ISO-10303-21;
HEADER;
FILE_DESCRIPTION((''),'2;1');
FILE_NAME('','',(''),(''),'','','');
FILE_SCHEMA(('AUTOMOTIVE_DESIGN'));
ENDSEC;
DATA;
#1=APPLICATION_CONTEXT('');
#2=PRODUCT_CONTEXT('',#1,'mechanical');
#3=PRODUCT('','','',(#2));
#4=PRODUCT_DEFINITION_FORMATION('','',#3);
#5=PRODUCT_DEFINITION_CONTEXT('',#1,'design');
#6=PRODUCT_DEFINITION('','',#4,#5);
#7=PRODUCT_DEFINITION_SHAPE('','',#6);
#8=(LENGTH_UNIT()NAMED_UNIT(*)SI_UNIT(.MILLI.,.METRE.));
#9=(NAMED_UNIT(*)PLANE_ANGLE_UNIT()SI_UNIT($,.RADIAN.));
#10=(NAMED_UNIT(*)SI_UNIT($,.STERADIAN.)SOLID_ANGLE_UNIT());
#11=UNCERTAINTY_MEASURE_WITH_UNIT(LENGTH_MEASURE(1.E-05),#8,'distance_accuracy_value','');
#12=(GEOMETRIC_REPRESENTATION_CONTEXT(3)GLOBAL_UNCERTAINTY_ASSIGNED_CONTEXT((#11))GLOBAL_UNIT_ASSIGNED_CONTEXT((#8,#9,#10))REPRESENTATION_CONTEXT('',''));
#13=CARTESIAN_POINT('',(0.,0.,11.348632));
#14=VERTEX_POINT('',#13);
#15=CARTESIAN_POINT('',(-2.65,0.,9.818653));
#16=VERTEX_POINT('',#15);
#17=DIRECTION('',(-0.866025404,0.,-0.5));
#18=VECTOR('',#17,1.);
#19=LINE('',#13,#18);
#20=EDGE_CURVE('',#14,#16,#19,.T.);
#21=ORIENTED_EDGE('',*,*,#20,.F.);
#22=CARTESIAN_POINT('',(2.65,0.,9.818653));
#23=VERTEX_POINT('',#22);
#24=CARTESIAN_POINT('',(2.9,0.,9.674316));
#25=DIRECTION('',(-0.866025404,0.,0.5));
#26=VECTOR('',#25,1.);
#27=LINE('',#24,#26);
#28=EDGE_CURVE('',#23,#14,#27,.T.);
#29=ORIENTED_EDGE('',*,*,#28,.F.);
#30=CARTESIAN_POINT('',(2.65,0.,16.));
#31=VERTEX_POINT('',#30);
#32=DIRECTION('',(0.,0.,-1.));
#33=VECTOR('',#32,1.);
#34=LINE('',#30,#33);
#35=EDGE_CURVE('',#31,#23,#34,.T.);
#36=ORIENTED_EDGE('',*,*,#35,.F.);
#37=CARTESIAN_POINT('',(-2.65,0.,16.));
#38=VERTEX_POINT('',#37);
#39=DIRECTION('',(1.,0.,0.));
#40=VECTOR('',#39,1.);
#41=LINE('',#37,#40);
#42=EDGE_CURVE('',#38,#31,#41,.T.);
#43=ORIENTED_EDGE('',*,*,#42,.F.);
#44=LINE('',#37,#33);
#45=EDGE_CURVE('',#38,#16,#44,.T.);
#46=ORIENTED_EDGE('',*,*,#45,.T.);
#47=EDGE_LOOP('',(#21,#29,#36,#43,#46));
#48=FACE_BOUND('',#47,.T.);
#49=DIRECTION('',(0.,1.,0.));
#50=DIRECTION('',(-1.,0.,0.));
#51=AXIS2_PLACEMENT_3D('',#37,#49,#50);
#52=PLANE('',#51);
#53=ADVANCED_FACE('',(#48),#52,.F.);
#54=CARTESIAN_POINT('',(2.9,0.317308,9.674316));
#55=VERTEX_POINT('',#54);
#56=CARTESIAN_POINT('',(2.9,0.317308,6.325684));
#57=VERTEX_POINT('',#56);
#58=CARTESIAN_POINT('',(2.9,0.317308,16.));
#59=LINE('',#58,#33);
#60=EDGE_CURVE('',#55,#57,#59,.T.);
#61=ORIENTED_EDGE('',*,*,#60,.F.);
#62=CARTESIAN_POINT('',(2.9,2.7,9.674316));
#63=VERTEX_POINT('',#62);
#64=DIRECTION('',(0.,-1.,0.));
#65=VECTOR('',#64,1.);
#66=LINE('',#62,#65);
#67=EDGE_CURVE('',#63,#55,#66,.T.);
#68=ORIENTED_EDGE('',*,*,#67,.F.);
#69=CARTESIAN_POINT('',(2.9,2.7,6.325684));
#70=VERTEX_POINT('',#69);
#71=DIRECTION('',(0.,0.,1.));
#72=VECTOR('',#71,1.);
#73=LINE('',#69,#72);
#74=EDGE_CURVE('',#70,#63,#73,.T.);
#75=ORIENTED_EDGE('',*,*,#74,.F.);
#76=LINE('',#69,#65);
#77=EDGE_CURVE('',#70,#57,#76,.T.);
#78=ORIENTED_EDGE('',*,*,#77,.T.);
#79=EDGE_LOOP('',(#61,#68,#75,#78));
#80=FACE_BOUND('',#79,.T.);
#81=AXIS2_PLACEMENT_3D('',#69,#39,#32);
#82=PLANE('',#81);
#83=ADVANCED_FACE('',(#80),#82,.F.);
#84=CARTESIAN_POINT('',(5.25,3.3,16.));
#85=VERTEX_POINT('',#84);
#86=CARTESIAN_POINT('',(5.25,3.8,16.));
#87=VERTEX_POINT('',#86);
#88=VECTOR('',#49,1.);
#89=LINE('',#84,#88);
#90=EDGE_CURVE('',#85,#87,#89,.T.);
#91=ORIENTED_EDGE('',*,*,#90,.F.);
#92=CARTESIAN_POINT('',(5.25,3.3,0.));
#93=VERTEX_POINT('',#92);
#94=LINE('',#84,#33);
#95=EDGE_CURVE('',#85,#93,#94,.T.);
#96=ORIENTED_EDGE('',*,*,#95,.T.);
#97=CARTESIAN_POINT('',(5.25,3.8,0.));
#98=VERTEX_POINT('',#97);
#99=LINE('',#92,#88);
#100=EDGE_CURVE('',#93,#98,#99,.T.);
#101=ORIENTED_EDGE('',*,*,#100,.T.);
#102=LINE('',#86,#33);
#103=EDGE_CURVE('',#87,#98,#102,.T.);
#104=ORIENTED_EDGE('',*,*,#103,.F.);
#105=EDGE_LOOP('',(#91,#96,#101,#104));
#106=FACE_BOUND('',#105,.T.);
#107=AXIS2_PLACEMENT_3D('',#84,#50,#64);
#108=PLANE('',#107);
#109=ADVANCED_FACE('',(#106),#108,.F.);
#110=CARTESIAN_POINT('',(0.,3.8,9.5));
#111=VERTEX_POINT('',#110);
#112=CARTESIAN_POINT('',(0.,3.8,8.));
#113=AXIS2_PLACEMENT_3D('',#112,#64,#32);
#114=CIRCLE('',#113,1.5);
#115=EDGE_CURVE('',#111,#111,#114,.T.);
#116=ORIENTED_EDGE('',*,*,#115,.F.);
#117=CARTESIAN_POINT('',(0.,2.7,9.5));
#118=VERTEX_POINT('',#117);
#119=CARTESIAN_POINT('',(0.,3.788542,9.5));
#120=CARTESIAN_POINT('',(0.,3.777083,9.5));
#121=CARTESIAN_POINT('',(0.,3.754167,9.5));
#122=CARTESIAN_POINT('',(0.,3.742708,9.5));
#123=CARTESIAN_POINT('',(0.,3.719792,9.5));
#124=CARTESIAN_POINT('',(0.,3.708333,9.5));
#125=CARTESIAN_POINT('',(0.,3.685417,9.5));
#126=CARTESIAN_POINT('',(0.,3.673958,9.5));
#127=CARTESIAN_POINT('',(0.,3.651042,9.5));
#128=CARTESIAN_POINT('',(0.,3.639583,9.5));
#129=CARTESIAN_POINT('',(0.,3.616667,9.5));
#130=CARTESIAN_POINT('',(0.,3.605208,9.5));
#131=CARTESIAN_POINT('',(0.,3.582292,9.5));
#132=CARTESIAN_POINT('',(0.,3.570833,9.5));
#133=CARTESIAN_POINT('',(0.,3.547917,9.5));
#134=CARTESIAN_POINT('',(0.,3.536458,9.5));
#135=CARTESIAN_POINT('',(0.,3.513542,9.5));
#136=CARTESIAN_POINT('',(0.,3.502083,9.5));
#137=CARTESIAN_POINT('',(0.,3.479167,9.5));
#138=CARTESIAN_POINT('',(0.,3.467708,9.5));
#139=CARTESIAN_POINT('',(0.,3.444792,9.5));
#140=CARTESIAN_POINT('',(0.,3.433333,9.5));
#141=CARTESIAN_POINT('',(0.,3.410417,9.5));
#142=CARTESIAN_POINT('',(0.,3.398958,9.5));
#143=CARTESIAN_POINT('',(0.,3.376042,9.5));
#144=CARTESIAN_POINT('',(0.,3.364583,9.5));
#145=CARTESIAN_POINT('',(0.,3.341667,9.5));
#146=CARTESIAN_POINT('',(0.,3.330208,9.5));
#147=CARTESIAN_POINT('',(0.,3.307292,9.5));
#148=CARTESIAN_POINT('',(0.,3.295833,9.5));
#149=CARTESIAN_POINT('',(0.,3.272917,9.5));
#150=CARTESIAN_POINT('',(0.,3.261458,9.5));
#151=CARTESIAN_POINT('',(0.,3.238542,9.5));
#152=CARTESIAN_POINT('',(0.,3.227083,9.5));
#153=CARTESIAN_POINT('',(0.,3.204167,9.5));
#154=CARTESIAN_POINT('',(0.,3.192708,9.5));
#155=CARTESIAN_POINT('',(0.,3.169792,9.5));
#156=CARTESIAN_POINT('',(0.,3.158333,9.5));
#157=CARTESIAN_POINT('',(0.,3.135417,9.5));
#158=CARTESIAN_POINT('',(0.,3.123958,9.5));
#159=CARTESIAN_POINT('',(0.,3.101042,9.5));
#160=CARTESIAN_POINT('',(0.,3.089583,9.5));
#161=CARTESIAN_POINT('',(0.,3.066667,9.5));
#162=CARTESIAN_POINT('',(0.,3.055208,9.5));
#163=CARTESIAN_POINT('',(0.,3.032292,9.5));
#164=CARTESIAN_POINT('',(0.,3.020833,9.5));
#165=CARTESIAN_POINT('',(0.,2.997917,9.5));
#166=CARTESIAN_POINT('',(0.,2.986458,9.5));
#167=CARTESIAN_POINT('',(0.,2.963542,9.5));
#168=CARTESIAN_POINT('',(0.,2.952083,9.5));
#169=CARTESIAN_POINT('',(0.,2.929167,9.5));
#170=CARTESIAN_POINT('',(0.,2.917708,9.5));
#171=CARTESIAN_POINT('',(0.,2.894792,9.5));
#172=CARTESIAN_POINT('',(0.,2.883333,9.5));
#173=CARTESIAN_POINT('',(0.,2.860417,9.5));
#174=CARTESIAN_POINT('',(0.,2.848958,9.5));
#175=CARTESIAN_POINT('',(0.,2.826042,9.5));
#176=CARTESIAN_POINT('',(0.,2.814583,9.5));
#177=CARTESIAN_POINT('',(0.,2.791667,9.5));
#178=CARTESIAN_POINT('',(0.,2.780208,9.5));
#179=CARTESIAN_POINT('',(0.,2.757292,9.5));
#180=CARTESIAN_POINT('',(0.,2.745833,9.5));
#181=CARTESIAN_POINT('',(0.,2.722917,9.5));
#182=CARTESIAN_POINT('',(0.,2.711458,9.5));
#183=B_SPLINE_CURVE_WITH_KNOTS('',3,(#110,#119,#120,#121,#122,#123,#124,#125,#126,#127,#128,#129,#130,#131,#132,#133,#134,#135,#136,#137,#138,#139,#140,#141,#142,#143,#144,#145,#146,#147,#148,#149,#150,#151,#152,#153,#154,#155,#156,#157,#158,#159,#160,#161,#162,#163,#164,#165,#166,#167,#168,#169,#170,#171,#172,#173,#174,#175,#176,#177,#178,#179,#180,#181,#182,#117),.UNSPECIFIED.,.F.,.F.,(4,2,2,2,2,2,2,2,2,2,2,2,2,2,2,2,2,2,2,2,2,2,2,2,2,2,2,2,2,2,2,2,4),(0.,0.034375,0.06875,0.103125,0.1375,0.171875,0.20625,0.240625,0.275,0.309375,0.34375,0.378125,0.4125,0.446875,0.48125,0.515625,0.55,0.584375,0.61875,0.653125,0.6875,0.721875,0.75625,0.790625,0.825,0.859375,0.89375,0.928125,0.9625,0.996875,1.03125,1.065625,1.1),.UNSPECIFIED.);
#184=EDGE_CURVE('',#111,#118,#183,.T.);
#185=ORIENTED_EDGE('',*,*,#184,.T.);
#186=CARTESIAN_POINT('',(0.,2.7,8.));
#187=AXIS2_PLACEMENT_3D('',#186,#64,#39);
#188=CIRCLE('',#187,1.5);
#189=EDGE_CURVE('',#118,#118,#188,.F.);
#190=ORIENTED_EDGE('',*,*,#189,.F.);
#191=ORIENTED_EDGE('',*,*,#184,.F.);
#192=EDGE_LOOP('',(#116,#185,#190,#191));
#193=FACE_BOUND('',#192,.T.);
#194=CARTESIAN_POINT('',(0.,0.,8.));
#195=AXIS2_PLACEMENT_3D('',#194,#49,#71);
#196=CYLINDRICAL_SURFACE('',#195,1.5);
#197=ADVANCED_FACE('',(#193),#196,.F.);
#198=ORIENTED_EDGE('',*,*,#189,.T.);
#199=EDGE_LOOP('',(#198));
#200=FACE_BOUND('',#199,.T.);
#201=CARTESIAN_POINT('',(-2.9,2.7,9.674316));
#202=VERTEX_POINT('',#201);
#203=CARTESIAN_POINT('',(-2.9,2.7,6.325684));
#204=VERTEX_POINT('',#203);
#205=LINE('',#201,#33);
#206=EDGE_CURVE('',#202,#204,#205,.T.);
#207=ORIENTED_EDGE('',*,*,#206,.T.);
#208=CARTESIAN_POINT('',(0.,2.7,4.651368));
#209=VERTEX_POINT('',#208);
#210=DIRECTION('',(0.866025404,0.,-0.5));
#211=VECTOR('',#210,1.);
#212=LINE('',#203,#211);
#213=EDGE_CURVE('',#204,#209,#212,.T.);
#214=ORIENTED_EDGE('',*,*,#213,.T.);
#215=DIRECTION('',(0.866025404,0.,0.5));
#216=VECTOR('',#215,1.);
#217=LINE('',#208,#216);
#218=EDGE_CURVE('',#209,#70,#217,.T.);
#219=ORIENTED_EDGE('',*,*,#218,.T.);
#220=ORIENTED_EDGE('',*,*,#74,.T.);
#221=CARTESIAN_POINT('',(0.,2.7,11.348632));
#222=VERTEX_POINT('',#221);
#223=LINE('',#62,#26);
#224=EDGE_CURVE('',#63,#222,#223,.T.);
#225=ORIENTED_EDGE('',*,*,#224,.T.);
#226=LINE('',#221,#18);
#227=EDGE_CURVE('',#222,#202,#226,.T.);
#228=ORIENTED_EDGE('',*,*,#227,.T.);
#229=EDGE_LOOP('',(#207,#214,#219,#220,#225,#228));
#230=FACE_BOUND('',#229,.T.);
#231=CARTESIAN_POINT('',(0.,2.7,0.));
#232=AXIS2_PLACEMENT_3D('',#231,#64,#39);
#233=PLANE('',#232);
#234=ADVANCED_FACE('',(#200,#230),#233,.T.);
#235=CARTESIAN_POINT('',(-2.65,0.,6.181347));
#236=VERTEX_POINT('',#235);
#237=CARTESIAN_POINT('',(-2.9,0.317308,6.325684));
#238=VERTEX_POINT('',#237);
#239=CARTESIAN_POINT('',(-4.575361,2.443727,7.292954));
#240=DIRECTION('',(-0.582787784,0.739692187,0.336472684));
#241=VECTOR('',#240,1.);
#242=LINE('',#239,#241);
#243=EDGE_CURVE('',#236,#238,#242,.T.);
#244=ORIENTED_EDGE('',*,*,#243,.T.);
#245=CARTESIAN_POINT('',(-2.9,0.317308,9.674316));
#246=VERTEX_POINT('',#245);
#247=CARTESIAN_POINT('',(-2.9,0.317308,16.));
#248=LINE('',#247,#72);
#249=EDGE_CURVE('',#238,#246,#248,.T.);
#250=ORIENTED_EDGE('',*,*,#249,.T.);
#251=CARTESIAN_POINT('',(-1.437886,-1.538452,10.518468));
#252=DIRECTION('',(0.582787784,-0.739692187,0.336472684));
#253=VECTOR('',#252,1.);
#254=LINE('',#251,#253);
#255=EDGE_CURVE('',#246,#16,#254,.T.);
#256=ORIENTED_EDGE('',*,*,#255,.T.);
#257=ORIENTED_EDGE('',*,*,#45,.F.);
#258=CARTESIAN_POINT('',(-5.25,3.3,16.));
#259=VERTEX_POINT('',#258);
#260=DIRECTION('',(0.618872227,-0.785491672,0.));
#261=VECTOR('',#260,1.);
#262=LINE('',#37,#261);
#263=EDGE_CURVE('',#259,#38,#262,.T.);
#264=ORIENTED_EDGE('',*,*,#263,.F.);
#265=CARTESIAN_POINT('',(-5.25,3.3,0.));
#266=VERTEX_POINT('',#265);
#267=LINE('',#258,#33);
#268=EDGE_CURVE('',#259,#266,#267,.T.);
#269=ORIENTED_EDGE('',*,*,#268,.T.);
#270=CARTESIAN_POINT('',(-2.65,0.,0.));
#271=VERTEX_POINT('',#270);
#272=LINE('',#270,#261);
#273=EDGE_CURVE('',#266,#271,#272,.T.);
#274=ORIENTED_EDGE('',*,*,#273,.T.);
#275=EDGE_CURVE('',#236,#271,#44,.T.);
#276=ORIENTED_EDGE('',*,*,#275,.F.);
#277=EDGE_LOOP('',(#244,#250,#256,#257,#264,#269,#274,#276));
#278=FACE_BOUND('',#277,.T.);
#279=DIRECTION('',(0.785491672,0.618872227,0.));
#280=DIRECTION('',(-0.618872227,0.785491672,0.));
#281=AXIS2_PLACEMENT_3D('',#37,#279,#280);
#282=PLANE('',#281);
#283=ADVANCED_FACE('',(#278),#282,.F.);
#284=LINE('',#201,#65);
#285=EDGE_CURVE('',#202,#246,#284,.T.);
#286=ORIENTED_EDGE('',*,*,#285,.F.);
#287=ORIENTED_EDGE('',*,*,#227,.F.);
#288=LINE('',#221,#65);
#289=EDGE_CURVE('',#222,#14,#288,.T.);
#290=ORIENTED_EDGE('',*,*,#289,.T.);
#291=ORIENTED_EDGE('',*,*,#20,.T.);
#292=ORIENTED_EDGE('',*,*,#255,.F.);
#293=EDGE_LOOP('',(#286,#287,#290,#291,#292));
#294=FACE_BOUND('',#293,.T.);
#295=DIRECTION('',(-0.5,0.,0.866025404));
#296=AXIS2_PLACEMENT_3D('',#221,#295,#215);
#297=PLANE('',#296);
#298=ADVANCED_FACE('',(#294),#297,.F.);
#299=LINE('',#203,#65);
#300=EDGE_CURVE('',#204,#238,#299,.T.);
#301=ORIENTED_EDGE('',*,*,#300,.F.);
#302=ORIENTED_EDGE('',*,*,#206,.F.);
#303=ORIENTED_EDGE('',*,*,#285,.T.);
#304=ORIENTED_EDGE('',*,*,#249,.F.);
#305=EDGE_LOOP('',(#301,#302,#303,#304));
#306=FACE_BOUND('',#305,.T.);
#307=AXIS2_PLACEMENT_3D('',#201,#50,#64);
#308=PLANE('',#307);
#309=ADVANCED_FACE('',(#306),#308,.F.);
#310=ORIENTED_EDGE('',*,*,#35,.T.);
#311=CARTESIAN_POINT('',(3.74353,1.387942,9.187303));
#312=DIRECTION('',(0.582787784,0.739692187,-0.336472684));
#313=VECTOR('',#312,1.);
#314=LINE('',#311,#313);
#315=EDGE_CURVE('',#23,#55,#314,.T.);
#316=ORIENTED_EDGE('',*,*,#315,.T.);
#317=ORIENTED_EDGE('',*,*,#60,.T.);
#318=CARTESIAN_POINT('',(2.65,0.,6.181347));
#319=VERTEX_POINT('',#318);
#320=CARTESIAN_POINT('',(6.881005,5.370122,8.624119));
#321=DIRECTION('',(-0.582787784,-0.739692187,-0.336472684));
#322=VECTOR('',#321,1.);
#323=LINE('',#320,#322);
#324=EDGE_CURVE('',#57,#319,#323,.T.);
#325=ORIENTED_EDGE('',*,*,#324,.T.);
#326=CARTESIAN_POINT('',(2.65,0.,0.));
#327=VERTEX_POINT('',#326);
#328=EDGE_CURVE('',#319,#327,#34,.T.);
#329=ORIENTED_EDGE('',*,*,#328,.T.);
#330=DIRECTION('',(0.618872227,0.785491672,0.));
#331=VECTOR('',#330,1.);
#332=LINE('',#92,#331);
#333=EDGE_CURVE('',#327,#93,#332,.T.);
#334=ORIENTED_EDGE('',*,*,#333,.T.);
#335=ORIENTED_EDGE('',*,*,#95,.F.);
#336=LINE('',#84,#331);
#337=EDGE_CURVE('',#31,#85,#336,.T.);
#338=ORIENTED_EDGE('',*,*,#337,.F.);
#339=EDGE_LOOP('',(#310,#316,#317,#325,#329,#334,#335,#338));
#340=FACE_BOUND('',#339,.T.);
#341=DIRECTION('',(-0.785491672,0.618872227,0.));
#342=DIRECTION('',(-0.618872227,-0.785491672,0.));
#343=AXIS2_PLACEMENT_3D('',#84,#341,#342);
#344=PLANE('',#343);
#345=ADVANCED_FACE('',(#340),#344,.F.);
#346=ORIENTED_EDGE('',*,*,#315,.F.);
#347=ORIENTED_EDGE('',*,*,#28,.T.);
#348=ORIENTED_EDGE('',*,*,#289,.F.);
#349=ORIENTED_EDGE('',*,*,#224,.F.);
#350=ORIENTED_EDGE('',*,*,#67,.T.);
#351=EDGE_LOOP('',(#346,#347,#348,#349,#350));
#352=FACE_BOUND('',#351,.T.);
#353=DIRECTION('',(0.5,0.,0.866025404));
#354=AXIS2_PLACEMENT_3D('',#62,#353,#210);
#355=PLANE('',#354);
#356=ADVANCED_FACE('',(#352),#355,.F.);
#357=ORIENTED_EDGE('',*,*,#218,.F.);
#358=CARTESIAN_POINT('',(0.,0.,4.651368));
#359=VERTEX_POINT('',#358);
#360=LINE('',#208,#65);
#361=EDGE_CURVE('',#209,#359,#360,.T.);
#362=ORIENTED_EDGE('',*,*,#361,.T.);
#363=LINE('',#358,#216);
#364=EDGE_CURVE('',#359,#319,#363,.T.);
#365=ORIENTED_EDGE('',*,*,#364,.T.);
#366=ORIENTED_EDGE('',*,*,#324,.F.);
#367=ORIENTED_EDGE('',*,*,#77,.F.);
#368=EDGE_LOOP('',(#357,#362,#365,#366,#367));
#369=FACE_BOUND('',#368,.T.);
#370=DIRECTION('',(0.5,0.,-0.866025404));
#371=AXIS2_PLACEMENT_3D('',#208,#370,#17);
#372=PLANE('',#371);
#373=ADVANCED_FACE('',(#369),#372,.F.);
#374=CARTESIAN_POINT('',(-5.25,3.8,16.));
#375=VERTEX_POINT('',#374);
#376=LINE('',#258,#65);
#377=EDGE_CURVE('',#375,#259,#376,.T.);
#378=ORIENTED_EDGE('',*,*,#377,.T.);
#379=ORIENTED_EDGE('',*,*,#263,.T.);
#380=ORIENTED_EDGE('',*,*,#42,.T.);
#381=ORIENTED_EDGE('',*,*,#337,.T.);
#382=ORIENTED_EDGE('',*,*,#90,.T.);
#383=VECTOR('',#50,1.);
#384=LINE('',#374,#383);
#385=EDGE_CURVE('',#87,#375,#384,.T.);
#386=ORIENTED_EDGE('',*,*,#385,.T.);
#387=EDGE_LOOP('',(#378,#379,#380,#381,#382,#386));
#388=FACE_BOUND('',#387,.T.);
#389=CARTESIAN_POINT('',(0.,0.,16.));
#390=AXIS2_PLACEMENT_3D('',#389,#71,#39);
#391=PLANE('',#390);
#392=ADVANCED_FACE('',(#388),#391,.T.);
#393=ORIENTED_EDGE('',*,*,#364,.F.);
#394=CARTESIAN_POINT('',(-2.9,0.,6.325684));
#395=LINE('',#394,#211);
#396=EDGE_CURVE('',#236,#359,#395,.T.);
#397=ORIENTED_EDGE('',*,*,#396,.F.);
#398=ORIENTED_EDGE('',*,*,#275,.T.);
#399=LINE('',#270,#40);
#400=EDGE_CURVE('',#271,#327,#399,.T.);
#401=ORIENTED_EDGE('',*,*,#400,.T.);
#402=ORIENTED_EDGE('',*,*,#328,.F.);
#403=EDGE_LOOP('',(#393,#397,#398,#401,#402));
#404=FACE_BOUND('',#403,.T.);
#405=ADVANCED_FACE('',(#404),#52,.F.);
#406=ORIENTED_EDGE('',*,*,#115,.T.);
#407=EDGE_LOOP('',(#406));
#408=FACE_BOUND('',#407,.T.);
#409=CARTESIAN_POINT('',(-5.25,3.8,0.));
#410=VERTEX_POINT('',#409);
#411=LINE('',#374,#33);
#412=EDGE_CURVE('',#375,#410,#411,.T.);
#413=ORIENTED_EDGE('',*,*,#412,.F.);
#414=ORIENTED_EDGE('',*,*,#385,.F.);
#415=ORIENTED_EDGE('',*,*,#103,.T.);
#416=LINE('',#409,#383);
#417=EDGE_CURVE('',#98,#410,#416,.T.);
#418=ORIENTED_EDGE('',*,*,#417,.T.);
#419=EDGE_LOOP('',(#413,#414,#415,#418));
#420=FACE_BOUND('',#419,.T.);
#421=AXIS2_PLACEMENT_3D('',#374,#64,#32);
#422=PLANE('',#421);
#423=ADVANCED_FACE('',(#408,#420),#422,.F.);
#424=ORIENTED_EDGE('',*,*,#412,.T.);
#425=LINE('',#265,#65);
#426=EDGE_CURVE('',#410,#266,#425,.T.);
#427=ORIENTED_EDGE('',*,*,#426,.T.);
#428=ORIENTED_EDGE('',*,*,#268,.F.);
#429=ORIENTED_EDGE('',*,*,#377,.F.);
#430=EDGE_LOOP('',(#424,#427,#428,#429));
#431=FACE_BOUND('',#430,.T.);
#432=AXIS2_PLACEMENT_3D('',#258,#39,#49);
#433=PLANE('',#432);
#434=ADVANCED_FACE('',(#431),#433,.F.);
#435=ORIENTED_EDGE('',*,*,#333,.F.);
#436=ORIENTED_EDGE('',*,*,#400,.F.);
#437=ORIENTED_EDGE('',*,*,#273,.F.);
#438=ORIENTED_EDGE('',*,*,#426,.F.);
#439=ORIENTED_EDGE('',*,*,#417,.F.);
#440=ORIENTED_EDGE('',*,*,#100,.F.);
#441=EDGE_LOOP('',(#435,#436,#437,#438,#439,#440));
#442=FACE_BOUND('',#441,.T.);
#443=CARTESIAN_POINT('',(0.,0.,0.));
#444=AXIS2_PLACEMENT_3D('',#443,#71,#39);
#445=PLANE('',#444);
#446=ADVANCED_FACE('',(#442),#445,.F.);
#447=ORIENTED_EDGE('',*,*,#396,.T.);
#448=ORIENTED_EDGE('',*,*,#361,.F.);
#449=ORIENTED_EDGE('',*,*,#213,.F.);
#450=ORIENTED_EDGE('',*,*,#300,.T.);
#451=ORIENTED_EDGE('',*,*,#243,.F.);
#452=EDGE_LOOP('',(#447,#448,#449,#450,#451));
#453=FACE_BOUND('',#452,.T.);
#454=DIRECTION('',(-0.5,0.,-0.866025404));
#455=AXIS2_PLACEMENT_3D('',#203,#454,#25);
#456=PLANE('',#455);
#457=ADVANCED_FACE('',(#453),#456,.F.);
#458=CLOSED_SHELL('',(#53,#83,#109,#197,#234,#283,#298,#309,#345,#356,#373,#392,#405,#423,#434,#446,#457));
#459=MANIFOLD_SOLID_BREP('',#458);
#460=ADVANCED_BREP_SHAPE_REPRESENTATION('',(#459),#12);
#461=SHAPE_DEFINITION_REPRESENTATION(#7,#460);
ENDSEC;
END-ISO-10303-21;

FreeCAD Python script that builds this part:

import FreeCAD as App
import Part
import Sketcher

V = App.Vector
Q = App.Units.Quantity


def add_polygon(sketch, points):
    """Adds a closed chain of lines whose ends are joined by coincident constraints."""
    first, n = sketch.GeometryCount, len(points)
    for a, b in zip(points, points[1:] + points[:1]):
        sketch.addGeometry(Part.LineSegment(App.Vector(*a, 0), App.Vector(*b, 0)), False)
    for i in range(n):
        sketch.addConstraint(Sketcher.Constraint("Coincident", first + i, 2, first + (i + 1) % n, 1))

doc = App.newDocument("Part")
params = doc.addObject("Spreadsheet::Sheet", "Params")
for row, (alias, value) in enumerate([
    ("sketch1_width", "5.3 mm"),
    ("sketch1_width2", "10.5 mm"),
    ("sketch1_height", "0.5 mm"),
    ("pad1_length", "16 mm"),
    ("sketch2_diameter", "3 mm"),
    ("pocket2_length", "2.7 mm"),
], start=1):
    params.set(f"A{row}", alias)
    params.set(f"B{row}", "=" + value)
    params.setAlias(f"B{row}", alias)

body = doc.addObject("PartDesign::Body", "Body")

# Sketch on XY plane
sketch1 = doc.addObject("Sketcher::SketchObject", "Sketch")
body.addObject(sketch1)
sketch1.AttachmentSupport = (doc.XY_Plane, [""])
sketch1.MapMode = "FlatFace"
add_polygon(sketch1, [(-2.6, 0), (2.6, 0), (5.2, 3.3), (5.2, 3.8), (-5.2, 3.8), (-5.2, 3.3)])  # lines 0-5
sketch1.addConstraint(Sketcher.Constraint("Horizontal", 0))
sketch1.addConstraint(Sketcher.Constraint("Vertical", 2))
sketch1.addConstraint(Sketcher.Constraint("Horizontal", 3))
sketch1.addConstraint(Sketcher.Constraint("Vertical", 4))
sketch1.addConstraint(Sketcher.Constraint("Symmetric", 0, 2, 5, 2, -1, 1))
sketch1.addConstraint(Sketcher.Constraint("Symmetric", 1, 2, 4, 2, -2))
sketch1.addConstraint(Sketcher.Constraint("DistanceX", 0, 1, 0, 2, Q("5.3 mm")))
sketch1.addConstraint(Sketcher.Constraint("DistanceX", 3, 2, 3, 1, Q("10.5 mm")))
sketch1.addConstraint(Sketcher.Constraint("DistanceY", 2, 1, 2, 2, Q("0.5 mm")))
sketch1.addConstraint(Sketcher.Constraint("DistanceY", -1, 1, 1, 2, Q("3.3 mm")))
sketch1.setExpression("Constraints[12]", "Params.sketch1_width")
sketch1.setExpression("Constraints[13]", "Params.sketch1_width2")
sketch1.setExpression("Constraints[14]", "Params.sketch1_height")
pad1 = doc.addObject("PartDesign::Pad", "Pad")
body.addObject(pad1)
pad1.Profile = sketch1
pad1.setExpression("Length", "Params.pad1_length")

# Sketch on XZ plane
sketch2 = doc.addObject("Sketcher::SketchObject", "Sketch001")
body.addObject(sketch2)
sketch2.AttachmentSupport = (doc.XZ_Plane, [""])
sketch2.MapMode = "FlatFace"
sketch2.AttachmentOffset = App.Placement(V(0, 0, -3.8), App.Rotation())
sketch2.addGeometry(Part.Circle(V(0, 8, 0), V(0, 0, 1), 1.5), False)
sketch2.addConstraint(Sketcher.Constraint("PointOnObject", 0, 3, -2))
sketch2.addConstraint(Sketcher.Constraint("Diameter", 0, Q("3 mm")))
sketch2.addConstraint(Sketcher.Constraint("DistanceY", -1, 1, 0, 3, Q("8 mm")))
sketch2.setExpression("Constraints[1]", "Params.sketch2_diameter")
pocket1 = doc.addObject("PartDesign::Pocket", "Pocket")
body.addObject(pocket1)
pocket1.Profile = sketch2
pocket1.Type = "ThroughAll"
pocket1.Midplane = True

# Sketch on XZ plane
sketch3 = doc.addObject("Sketcher::SketchObject", "Sketch002")
body.addObject(sketch3)
sketch3.AttachmentSupport = (doc.XZ_Plane, [""])
sketch3.MapMode = "FlatFace"
add_polygon(sketch3, [(0, 11.3), (-2.9, 9.7), (-2.9, 6.3), (0, 4.7), (2.9, 6.3), (2.9, 9.7)])  # lines 0-5
sketch3.addConstraint(Sketcher.Constraint("Vertical", 1))
sketch3.addConstraint(Sketcher.Constraint("Vertical", 4))
sketch3.addConstraint(Sketcher.Constraint("Symmetric", 1, 2, 3, 2, -2))
sketch3.addConstraint(Sketcher.Constraint("PointOnObject", 2, 2, -2))
sketch3.addConstraint(Sketcher.Constraint("PointOnObject", 5, 2, -2))
sketch3.addConstraint(Sketcher.Constraint("Parallel", 0, 3))
sketch3.addConstraint(Sketcher.Constraint("Parallel", 2, 5))
sketch3.addConstraint(Sketcher.Constraint("Angle", 0, Q("-150 deg")))
sketch3.addConstraint(Sketcher.Constraint("DistanceX", 0, 2, -1, 1, Q("2.9 mm")))
sketch3.addConstraint(Sketcher.Constraint("DistanceY", 1, 2, 1, 1, Q("3.348632 mm")))
sketch3.addConstraint(Sketcher.Constraint("DistanceY", -1, 1, 2, 2, Q("4.651368 mm")))
pocket2 = doc.addObject("PartDesign::Pocket", "Pocket001")
body.addObject(pocket2)
pocket2.Profile = sketch3
pocket2.setExpression("Length", "Params.pocket2_length")

doc.recompute()
